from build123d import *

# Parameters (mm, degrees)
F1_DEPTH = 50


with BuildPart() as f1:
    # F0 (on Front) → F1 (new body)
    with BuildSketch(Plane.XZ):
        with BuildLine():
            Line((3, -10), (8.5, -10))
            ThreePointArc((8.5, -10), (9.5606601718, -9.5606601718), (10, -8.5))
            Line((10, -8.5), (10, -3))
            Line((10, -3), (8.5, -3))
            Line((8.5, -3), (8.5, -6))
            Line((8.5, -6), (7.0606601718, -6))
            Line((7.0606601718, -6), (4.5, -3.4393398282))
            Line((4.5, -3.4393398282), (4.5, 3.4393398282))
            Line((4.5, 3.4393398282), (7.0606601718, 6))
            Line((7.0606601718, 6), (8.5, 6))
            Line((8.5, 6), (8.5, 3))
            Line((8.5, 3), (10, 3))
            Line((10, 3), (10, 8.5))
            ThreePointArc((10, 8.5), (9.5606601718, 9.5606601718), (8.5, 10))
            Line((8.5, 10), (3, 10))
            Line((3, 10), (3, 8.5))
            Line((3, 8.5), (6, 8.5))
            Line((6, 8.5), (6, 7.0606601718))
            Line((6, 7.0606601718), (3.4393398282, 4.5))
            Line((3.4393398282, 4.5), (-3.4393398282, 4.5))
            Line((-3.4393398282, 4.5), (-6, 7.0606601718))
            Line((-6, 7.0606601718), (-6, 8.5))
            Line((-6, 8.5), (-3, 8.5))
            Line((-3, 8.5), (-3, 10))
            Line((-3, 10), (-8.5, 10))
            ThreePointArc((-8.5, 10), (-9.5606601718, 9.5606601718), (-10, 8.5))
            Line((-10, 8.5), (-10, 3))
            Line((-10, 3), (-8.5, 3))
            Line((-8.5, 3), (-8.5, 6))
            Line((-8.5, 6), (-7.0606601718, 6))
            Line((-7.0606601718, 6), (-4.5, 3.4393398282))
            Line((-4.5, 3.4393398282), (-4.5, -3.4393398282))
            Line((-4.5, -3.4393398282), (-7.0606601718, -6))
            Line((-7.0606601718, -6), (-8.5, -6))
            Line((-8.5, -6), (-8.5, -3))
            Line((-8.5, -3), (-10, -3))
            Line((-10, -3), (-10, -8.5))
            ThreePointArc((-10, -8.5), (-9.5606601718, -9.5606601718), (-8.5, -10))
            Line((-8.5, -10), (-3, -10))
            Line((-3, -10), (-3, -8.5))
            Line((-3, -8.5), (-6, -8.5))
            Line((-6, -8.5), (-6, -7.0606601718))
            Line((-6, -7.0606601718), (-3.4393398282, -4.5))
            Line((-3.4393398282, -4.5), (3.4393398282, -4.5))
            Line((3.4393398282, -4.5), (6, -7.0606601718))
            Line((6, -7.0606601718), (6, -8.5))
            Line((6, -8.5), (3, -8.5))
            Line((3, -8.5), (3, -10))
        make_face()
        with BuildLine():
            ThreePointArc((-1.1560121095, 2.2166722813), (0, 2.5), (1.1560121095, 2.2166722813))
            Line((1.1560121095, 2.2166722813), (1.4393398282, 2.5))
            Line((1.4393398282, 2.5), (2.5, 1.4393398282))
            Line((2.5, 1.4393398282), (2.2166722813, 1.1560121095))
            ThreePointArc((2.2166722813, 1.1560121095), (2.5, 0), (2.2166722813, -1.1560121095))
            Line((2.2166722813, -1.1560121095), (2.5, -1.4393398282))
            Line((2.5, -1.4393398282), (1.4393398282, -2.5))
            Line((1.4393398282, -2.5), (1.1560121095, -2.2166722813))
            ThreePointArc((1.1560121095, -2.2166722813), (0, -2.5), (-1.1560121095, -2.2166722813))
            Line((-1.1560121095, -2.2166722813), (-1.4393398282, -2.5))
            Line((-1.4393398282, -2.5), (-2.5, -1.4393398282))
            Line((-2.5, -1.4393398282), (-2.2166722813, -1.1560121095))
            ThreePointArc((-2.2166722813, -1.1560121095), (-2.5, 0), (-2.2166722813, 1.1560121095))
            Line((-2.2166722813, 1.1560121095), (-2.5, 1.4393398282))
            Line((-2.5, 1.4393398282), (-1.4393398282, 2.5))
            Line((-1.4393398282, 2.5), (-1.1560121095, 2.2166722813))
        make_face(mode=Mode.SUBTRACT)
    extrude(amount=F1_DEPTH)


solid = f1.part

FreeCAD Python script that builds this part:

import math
import FreeCAD as App
import Part
import Sketcher

V = App.Vector
Q = App.Units.Quantity

doc = App.newDocument("Part")
params = doc.addObject("Spreadsheet::Sheet", "Params")
for row, (alias, value) in enumerate([
    ("sketch1_radius", "1.5 mm"),
    ("sketch1_radius2", "2.5 mm"),
    ("sketch1_width", "3 mm"),
    ("sketch1_width2", "5.5 mm"),
    ("sketch1_length", "1.5 mm"),
    ("pad1_length", "50 mm"),
], start=1):
    params.set(f"A{row}", alias)
    params.set(f"B{row}", "=" + value)
    params.setAlias(f"B{row}", alias)

body = doc.addObject("PartDesign::Body", "Body")

# Sketch on XZ plane
sketch1 = doc.addObject("Sketcher::SketchObject", "Sketch")
body.addObject(sketch1)
sketch1.AttachmentSupport = (doc.XZ_Plane, [""])
sketch1.MapMode = "FlatFace"
sketch1.addGeometry([
    Part.LineSegment(V(3, -10, 0), V(8.5, -10, 0)),  # 0
    Part.ArcOfCircle(Part.Circle(V(8.5, -8.5, 0), V(0, 0, 1), 1.5), math.radians(-90), math.radians(0)),  # 1
    Part.LineSegment(V(10, -8.5, 0), V(10, -3, 0)),  # 2
    Part.LineSegment(V(10, -3, 0), V(8.5, -3, 0)),  # 3
    Part.LineSegment(V(8.5, -3, 0), V(8.5, -6, 0)),  # 4
    Part.LineSegment(V(8.5, -6, 0), V(7.06066, -6, 0)),  # 5
    Part.LineSegment(V(7.06066, -6, 0), V(4.5, -3.43934, 0)),  # 6
    Part.LineSegment(V(4.5, -3.43934, 0), V(4.5, 3.43934, 0)),  # 7
    Part.LineSegment(V(4.5, 3.43934, 0), V(7.06066, 6, 0)),  # 8
    Part.LineSegment(V(7.06066, 6, 0), V(8.5, 6, 0)),  # 9
    Part.LineSegment(V(8.5, 6, 0), V(8.5, 3, 0)),  # 10
    Part.LineSegment(V(8.5, 3, 0), V(10, 3, 0)),  # 11
    Part.LineSegment(V(10, 3, 0), V(10, 8.5, 0)),  # 12
    Part.ArcOfCircle(Part.Circle(V(8.5, 8.5, 0), V(0, 0, 1), 1.5), math.radians(0), math.radians(90)),  # 13
    Part.LineSegment(V(8.5, 10, 0), V(3, 10, 0)),  # 14
    Part.LineSegment(V(3, 10, 0), V(3, 8.5, 0)),  # 15
    Part.LineSegment(V(3, 8.5, 0), V(6, 8.5, 0)),  # 16
    Part.LineSegment(V(6, 8.5, 0), V(6, 7.06066, 0)),  # 17
    Part.LineSegment(V(6, 7.06066, 0), V(3.43934, 4.5, 0)),  # 18
    Part.LineSegment(V(3.43934, 4.5, 0), V(-3.43934, 4.5, 0)),  # 19
    Part.LineSegment(V(-3.43934, 4.5, 0), V(-6, 7.06066, 0)),  # 20
    Part.LineSegment(V(-6, 7.06066, 0), V(-6, 8.5, 0)),  # 21
    Part.LineSegment(V(-6, 8.5, 0), V(-3, 8.5, 0)),  # 22
    Part.LineSegment(V(-3, 8.5, 0), V(-3, 10, 0)),  # 23
    Part.LineSegment(V(-3, 10, 0), V(-8.5, 10, 0)),  # 24
    Part.ArcOfCircle(Part.Circle(V(-8.5, 8.5, 0), V(0, 0, 1), 1.5), math.radians(90), math.radians(180)),  # 25
    Part.LineSegment(V(-10, 8.5, 0), V(-10, 3, 0)),  # 26
    Part.LineSegment(V(-10, 3, 0), V(-8.5, 3, 0)),  # 27
    Part.LineSegment(V(-8.5, 3, 0), V(-8.5, 6, 0)),  # 28
    Part.LineSegment(V(-8.5, 6, 0), V(-7.06066, 6, 0)),  # 29
    Part.LineSegment(V(-7.06066, 6, 0), V(-4.5, 3.43934, 0)),  # 30
    Part.LineSegment(V(-4.5, 3.43934, 0), V(-4.5, -3.43934, 0)),  # 31
    Part.LineSegment(V(-4.5, -3.43934, 0), V(-7.06066, -6, 0)),  # 32
    Part.LineSegment(V(-7.06066, -6, 0), V(-8.5, -6, 0)),  # 33
    Part.LineSegment(V(-8.5, -6, 0), V(-8.5, -3, 0)),  # 34
    Part.LineSegment(V(-8.5, -3, 0), V(-10, -3, 0)),  # 35
    Part.LineSegment(V(-10, -3, 0), V(-10, -8.5, 0)),  # 36
    Part.ArcOfCircle(Part.Circle(V(-8.5, -8.5, 0), V(0, 0, 1), 1.5), math.radians(180), math.radians(270)),  # 37
    Part.LineSegment(V(-8.5, -10, 0), V(-3, -10, 0)),  # 38
    Part.LineSegment(V(-3, -10, 0), V(-3, -8.5, 0)),  # 39
    Part.LineSegment(V(-3, -8.5, 0), V(-6, -8.5, 0)),  # 40
    Part.LineSegment(V(-6, -8.5, 0), V(-6, -7.06066, 0)),  # 41
    Part.LineSegment(V(-6, -7.06066, 0), V(-3.43934, -4.5, 0)),  # 42
    Part.LineSegment(V(-3.43934, -4.5, 0), V(3.43934, -4.5, 0)),  # 43
    Part.LineSegment(V(3.43934, -4.5, 0), V(6, -7.06066, 0)),  # 44
    Part.LineSegment(V(6, -7.06066, 0), V(6, -8.5, 0)),  # 45
    Part.LineSegment(V(6, -8.5, 0), V(3, -8.5, 0)),  # 46
    Part.LineSegment(V(3, -8.5, 0), V(3, -10, 0)),  # 47
    Part.LineSegment(V(-1.43934, 2.5, 0), V(-1.156012, 2.216672, 0)),  # 48
    Part.ArcOfCircle(Part.Circle(V(0, 0, 0), V(0, 0, 1), 2.5), math.radians(62.457603), math.radians(117.542397)),  # 49
    Part.LineSegment(V(1.156012, 2.216672, 0), V(1.43934, 2.5, 0)),  # 50
    Part.LineSegment(V(1.43934, 2.5, 0), V(2.5, 1.43934, 0)),  # 51
    Part.LineSegment(V(2.5, 1.43934, 0), V(2.216672, 1.156012, 0)),  # 52
    Part.ArcOfCircle(Part.Circle(V(0, 0, 0), V(0, 0, 1), 2.5), math.radians(-27.542397), math.radians(27.542397)),  # 53
    Part.LineSegment(V(2.216672, -1.156012, 0), V(2.5, -1.43934, 0)),  # 54
    Part.LineSegment(V(2.5, -1.43934, 0), V(1.43934, -2.5, 0)),  # 55
    Part.LineSegment(V(1.43934, -2.5, 0), V(1.156012, -2.216672, 0)),  # 56
    Part.ArcOfCircle(Part.Circle(V(0, 0, 0), V(0, 0, 1), 2.5), math.radians(-117.542397), math.radians(-62.457603)),  # 57
    Part.LineSegment(V(-1.156012, -2.216672, 0), V(-1.43934, -2.5, 0)),  # 58
    Part.LineSegment(V(-1.43934, -2.5, 0), V(-2.5, -1.43934, 0)),  # 59
    Part.LineSegment(V(-2.5, -1.43934, 0), V(-2.216672, -1.156012, 0)),  # 60
    Part.ArcOfCircle(Part.Circle(V(0, 0, 0), V(0, 0, 1), 2.5), math.radians(152.457603), math.radians(207.542397)),  # 61
    Part.LineSegment(V(-2.216672, 1.156012, 0), V(-2.5, 1.43934, 0)),  # 62
    Part.LineSegment(V(-2.5, 1.43934, 0), V(-1.43934, 2.5, 0)),  # 63
], False)
sketch1.addConstraint([
    Sketcher.Constraint("Tangent", 0, 2, 1, 1),
    Sketcher.Constraint("Tangent", 1, 2, 2, 1),
    Sketcher.Constraint("Coincident", 2, 2, 3, 1),
    Sketcher.Constraint("Coincident", 3, 2, 4, 1),
    Sketcher.Constraint("Coincident", 4, 2, 5, 1),
    Sketcher.Constraint("Coincident", 5, 2, 6, 1),
    Sketcher.Constraint("Coincident", 6, 2, 7, 1),
    Sketcher.Constraint("Coincident", 7, 2, 8, 1),
    Sketcher.Constraint("Coincident", 8, 2, 9, 1),
    Sketcher.Constraint("Coincident", 9, 2, 10, 1),
    Sketcher.Constraint("Coincident", 10, 2, 11, 1),
    Sketcher.Constraint("Coincident", 11, 2, 12, 1),
    Sketcher.Constraint("Tangent", 12, 2, 13, 1),
    Sketcher.Constraint("Tangent", 13, 2, 14, 1),
    Sketcher.Constraint("Coincident", 14, 2, 15, 1),
    Sketcher.Constraint("Coincident", 15, 2, 16, 1),
    Sketcher.Constraint("Coincident", 16, 2, 17, 1),
    Sketcher.Constraint("Coincident", 17, 2, 18, 1),
    Sketcher.Constraint("Coincident", 18, 2, 19, 1),
    Sketcher.Constraint("Coincident", 19, 2, 20, 1),
    Sketcher.Constraint("Coincident", 20, 2, 21, 1),
    Sketcher.Constraint("Coincident", 21, 2, 22, 1),
    Sketcher.Constraint("Coincident", 22, 2, 23, 1),
    Sketcher.Constraint("Coincident", 23, 2, 24, 1),
    Sketcher.Constraint("Tangent", 24, 2, 25, 1),
    Sketcher.Constraint("Tangent", 25, 2, 26, 1),
    Sketcher.Constraint("Coincident", 26, 2, 27, 1),
    Sketcher.Constraint("Coincident", 27, 2, 28, 1),
    Sketcher.Constraint("Coincident", 28, 2, 29, 1),
    Sketcher.Constraint("Coincident", 29, 2, 30, 1),
    Sketcher.Constraint("Coincident", 30, 2, 31, 1),
    Sketcher.Constraint("Coincident", 31, 2, 32, 1),
    Sketcher.Constraint("Coincident", 32, 2, 33, 1),
    Sketcher.Constraint("Coincident", 33, 2, 34, 1),
    Sketcher.Constraint("Coincident", 34, 2, 35, 1),
    Sketcher.Constraint("Coincident", 35, 2, 36, 1),
    Sketcher.Constraint("Tangent", 36, 2, 37, 1),
    Sketcher.Constraint("Tangent", 37, 2, 38, 1),
    Sketcher.Constraint("Coincident", 38, 2, 39, 1),
    Sketcher.Constraint("Coincident", 39, 2, 40, 1),
    Sketcher.Constraint("Coincident", 40, 2, 41, 1),
    Sketcher.Constraint("Coincident", 41, 2, 42, 1),
    Sketcher.Constraint("Coincident", 42, 2, 43, 1),
    Sketcher.Constraint("Coincident", 43, 2, 44, 1),
    Sketcher.Constraint("Coincident", 44, 2, 45, 1),
    Sketcher.Constraint("Coincident", 45, 2, 46, 1),
    Sketcher.Constraint("Coincident", 46, 2, 47, 1),
    Sketcher.Constraint("Coincident", 47, 2, 0, 1),
    Sketcher.Constraint("Coincident", 48, 2, 49, 2),
    Sketcher.Constraint("Coincident", 49, 1, 50, 1),
    Sketcher.Constraint("Coincident", 50, 2, 51, 1),
    Sketcher.Constraint("Coincident", 51, 2, 52, 1),
    Sketcher.Constraint("Coincident", 52, 2, 53, 2),
    Sketcher.Constraint("Coincident", 53, 1, 54, 1),
    Sketcher.Constraint("Coincident", 54, 2, 55, 1),
    Sketcher.Constraint("Coincident", 55, 2, 56, 1),
    Sketcher.Constraint("Coincident", 56, 2, 57, 2),
    Sketcher.Constraint("Coincident", 57, 1, 58, 1),
    Sketcher.Constraint("Coincident", 58, 2, 59, 1),
    Sketcher.Constraint("Coincident", 59, 2, 60, 1),
    Sketcher.Constraint("Coincident", 60, 2, 61, 2),
    Sketcher.Constraint("Coincident", 61, 1, 62, 1),
    Sketcher.Constraint("Coincident", 62, 2, 63, 1),
    Sketcher.Constraint("Coincident", 63, 2, 48, 1),
    Sketcher.Constraint("Horizontal", 0),
    Sketcher.Constraint("Vertical", 2),
    Sketcher.Constraint("Horizontal", 3),
    Sketcher.Constraint("Vertical", 4),
    Sketcher.Constraint("Horizontal", 5),
    Sketcher.Constraint("Vertical", 7),
    Sketcher.Constraint("Horizontal", 9),
    Sketcher.Constraint("Vertical", 10),
    Sketcher.Constraint("Horizontal", 11),
    Sketcher.Constraint("Vertical", 12),
    Sketcher.Constraint("Horizontal", 14),
    Sketcher.Constraint("Vertical", 15),
    Sketcher.Constraint("Horizontal", 16),
    Sketcher.Constraint("Vertical", 17),
    Sketcher.Constraint("Horizontal", 19),
    Sketcher.Constraint("Vertical", 21),
    Sketcher.Constraint("Horizontal", 22),
    Sketcher.Constraint("Vertical", 23),
    Sketcher.Constraint("Horizontal", 24),
    Sketcher.Constraint("Vertical", 26),
    Sketcher.Constraint("Horizontal", 27),
    Sketcher.Constraint("Vertical", 28),
    Sketcher.Constraint("Horizontal", 29),
    Sketcher.Constraint("Vertical", 31),
    Sketcher.Constraint("Horizontal", 33),
    Sketcher.Constraint("Vertical", 34),
    Sketcher.Constraint("Horizontal", 35),
    Sketcher.Constraint("Vertical", 36),
    Sketcher.Constraint("Horizontal", 38),
    Sketcher.Constraint("Vertical", 39),
    Sketcher.Constraint("Horizontal", 40),
    Sketcher.Constraint("Vertical", 41),
    Sketcher.Constraint("Horizontal", 43),
    Sketcher.Constraint("Vertical", 45),
    Sketcher.Constraint("Horizontal", 46),
    Sketcher.Constraint("Vertical", 47),
    Sketcher.Constraint("Coincident", 49, 3, -1, 1),
    Sketcher.Constraint("Coincident", 53, 3, -1, 1),
    Sketcher.Constraint("Coincident", 57, 3, -1, 1),
    Sketcher.Constraint("Coincident", 61, 3, -1, 1),
    Sketcher.Constraint("Equal", 1, 13),
    Sketcher.Constraint("Equal", 13, 25),
    Sketcher.Constraint("Equal", 25, 37),
    Sketcher.Constraint("Equal", 49, 53),
    Sketcher.Constraint("Equal", 53, 57),
    Sketcher.Constraint("Equal", 57, 61),
    Sketcher.Constraint("Symmetric", 1, 3, 25, 3, -1, 1),
    Sketcher.Constraint("Symmetric", 13, 3, 37, 3, -1, 1),
    Sketcher.Constraint("Symmetric", 3, 2, 27, 2, -1, 1),
    Sketcher.Constraint("Symmetric", 5, 2, 29, 2, -1, 1),
    Sketcher.Constraint("Symmetric", 6, 2, 30, 2, -1, 1),
    Sketcher.Constraint("Symmetric", 8, 2, 32, 2, -1, 1),
    Sketcher.Constraint("Symmetric", 10, 2, 34, 2, -1, 1),
    Sketcher.Constraint("Symmetric", 15, 2, 39, 2, -1, 1),
    Sketcher.Constraint("Symmetric", 17, 2, 41, 2, -1, 1),
    Sketcher.Constraint("Symmetric", 18, 2, 42, 2, -1, 1),
    Sketcher.Constraint("Symmetric", 20, 2, 44, 2, -1, 1),
    Sketcher.Constraint("Symmetric", 22, 2, 46, 2, -1, 1),
    Sketcher.Constraint("Symmetric", 50, 2, 58, 2, -1, 1),
    Sketcher.Constraint("Symmetric", 51, 2, 59, 2, -1, 1),
    Sketcher.Constraint("Symmetric", 54, 2, 62, 2, -1, 1),
    Sketcher.Constraint("Symmetric", 55, 2, 63, 2, -1, 1),
    Sketcher.Constraint("Symmetric", 13, 3, 25, 3, -2),
    Sketcher.Constraint("Symmetric", 17, 2, 20, 2, -2),
    Sketcher.Constraint("Symmetric", 15, 2, 22, 2, -2),
    Sketcher.Constraint("Symmetric", 10, 2, 27, 2, -2),
    Sketcher.Constraint("Symmetric", 8, 2, 29, 2, -2),
    Sketcher.Constraint("Symmetric", 55, 2, 58, 2, -2),
    Sketcher.Constraint("Symmetric", 54, 2, 59, 2, -2),
    Sketcher.Constraint("Perpendicular", 6, 8),
    Sketcher.Constraint("Parallel", 8, 18),
    Sketcher.Constraint("Perpendicular", 18, 20),
    Sketcher.Constraint("Perpendicular", 30, 32),
    Sketcher.Constraint("Perpendicular", 42, 44),
    Sketcher.Constraint("Parallel", 44, 48),
    Sketcher.Constraint("Perpendicular", 48, 50),
    Sketcher.Constraint("Perpendicular", 50, 51),
    Sketcher.Constraint("Perpendicular", 51, 52),
    Sketcher.Constraint("Perpendicular", 52, 54),
    Sketcher.Constraint("Perpendicular", 54, 55),
    Sketcher.Constraint("Perpendicular", 55, 56),
    Sketcher.Constraint("Perpendicular", 56, 58),
    Sketcher.Constraint("Perpendicular", 59, 60),
    Sketcher.Constraint("Perpendicular", 60, 62),
    Sketcher.Constraint("Horizontal", 12, 2, 15, 2),
    Sketcher.Constraint("Vertical", 0, 2, 3, 2),
    Sketcher.Constraint("Equal", 38, 2),
    Sketcher.Constraint("Equal", 46, 4),
    Sketcher.Constraint("Equal", 43, 7),
    Sketcher.Constraint("Equal", 33, 17),
    Sketcher.Constraint("Equal", 8, 18),
    Sketcher.Constraint("Equal", 50, 52),
    Sketcher.Constraint("Radius", 1, Q("1.5 mm")),
    Sketcher.Constraint("Radius", 49, Q("2.5 mm")),
    Sketcher.Constraint("DistanceX", 16, 1, 16, 2, Q("3 mm")),
    Sketcher.Constraint("DistanceX", 0, 1, 0, 2, Q("5.5 mm")),
    Sketcher.Constraint("DistanceY", 0, 2, -1, 1, Q("10 mm")),
    Sketcher.Constraint("Distance", 51, Q("1.5 mm")),
    Sketcher.Constraint("DistanceX", -1, 1, 6, 2, Q("4.5 mm")),
    Sketcher.Constraint("DistanceY", -1, 1, 50, 2, Q("2.5 mm")),
    Sketcher.Constraint("DistanceX", 5, 2, 5, 1, Q("1.43934 mm")),
])
sketch1.setExpression("Constraints[156]", "Params.sketch1_radius")
sketch1.setExpression("Constraints[157]", "Params.sketch1_radius2")
sketch1.setExpression("Constraints[158]", "Params.sketch1_width")
sketch1.setExpression("Constraints[159]", "Params.sketch1_width2")
sketch1.setExpression("Constraints[161]", "Params.sketch1_length")
pad1 = doc.addObject("PartDesign::Pad", "Pad")
body.addObject(pad1)
pad1.Profile = sketch1
pad1.setExpression("Length", "Params.pad1_length")

doc.recompute()
